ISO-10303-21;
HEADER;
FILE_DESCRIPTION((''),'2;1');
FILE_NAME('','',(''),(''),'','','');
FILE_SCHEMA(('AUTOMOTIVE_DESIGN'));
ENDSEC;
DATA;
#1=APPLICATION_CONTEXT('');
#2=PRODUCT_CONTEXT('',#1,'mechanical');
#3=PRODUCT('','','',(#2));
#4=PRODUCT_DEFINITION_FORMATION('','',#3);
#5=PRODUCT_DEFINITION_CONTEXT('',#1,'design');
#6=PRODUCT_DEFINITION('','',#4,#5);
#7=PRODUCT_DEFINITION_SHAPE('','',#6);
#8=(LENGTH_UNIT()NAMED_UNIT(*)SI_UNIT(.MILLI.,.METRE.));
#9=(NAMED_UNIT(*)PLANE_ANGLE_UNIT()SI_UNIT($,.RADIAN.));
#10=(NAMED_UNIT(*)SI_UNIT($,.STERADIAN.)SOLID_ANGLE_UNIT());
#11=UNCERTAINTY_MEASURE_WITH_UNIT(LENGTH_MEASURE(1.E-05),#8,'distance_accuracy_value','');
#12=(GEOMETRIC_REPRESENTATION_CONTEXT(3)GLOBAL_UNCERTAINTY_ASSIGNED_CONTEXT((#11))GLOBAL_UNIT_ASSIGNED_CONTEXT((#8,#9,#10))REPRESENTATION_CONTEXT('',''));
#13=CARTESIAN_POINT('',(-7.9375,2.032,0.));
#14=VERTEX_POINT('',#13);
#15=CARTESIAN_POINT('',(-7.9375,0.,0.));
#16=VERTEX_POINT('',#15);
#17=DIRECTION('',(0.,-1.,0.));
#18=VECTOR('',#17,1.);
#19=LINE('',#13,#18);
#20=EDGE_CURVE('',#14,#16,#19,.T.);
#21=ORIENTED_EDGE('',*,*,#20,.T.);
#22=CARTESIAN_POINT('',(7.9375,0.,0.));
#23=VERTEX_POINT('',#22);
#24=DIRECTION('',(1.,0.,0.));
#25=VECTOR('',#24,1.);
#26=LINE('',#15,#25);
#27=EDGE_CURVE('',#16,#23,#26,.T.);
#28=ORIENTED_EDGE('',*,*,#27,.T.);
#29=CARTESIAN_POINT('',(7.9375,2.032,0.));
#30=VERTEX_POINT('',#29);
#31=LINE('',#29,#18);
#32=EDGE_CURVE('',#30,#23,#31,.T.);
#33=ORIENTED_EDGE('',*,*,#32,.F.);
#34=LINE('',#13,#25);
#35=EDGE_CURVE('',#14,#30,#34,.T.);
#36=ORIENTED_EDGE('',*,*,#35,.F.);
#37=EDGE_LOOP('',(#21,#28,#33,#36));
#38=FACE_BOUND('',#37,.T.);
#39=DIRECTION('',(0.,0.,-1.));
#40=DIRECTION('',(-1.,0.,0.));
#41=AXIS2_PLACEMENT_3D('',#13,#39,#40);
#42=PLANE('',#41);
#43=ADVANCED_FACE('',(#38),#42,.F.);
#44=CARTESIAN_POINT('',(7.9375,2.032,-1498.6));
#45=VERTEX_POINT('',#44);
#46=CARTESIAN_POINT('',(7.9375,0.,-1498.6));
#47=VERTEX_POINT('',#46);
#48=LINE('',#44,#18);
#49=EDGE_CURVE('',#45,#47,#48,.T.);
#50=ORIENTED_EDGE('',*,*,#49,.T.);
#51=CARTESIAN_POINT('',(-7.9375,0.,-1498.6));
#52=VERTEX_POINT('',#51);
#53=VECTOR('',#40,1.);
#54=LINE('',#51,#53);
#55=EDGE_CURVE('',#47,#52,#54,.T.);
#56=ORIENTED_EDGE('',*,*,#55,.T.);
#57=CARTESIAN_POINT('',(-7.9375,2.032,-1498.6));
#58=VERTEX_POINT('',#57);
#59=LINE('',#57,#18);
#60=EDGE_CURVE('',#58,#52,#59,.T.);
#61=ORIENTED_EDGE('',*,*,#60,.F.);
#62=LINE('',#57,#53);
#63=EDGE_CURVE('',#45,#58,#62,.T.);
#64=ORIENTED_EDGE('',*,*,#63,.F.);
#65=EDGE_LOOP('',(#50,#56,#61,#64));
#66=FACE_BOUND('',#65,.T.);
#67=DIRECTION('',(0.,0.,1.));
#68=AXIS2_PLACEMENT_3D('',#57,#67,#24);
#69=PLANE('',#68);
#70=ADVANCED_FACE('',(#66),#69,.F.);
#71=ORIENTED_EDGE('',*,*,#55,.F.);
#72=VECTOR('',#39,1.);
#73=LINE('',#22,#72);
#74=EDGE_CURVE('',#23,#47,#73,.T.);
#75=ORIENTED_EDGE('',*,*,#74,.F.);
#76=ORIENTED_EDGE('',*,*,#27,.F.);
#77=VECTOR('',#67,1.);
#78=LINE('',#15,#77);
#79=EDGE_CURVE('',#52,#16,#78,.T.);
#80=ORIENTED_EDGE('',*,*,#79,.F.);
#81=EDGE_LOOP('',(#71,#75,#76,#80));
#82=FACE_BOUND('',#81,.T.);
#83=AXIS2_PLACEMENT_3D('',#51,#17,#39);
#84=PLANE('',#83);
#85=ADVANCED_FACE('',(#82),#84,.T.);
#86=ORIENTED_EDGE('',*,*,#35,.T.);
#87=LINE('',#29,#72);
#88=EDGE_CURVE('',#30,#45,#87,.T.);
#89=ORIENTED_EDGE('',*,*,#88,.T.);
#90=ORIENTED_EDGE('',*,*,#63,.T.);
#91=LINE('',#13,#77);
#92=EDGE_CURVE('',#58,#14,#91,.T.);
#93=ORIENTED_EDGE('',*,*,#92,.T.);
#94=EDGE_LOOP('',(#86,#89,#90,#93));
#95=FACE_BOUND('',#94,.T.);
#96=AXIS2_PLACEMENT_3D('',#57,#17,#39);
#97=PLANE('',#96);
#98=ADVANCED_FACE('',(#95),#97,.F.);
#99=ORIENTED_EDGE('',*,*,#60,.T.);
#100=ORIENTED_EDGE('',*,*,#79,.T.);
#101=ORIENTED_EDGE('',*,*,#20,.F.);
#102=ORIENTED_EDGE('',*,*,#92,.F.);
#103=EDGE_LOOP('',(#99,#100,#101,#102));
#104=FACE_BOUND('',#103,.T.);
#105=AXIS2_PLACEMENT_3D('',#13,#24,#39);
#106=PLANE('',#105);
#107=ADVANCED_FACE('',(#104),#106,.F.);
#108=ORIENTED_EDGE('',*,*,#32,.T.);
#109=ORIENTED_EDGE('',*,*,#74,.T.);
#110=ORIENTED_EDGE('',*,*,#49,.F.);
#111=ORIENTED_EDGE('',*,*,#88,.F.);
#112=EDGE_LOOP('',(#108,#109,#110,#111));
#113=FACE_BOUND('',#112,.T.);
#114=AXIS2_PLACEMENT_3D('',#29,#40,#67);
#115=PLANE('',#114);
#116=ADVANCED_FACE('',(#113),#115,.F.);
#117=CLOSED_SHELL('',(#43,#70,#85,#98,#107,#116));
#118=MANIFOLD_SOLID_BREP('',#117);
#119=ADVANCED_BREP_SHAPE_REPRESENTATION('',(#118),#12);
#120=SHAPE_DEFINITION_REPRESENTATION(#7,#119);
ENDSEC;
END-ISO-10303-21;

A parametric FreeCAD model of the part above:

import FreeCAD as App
import Part
import Sketcher
from FreeCAD import Vector
Q = App.Units.Quantity


def add_polygon(sketch, points):
    """Adds a closed chain of lines whose ends are joined by coincident constraints."""
    first, n = sketch.GeometryCount, len(points)
    for a, b in zip(points, points[1:] + points[:1]):
        sketch.addGeometry(Part.LineSegment(App.Vector(*a, 0), App.Vector(*b, 0)), False)
    for i in range(n):
        sketch.addConstraint(Sketcher.Constraint("Coincident", first + i, 2, first + (i + 1) % n, 1))

doc = App.newDocument("Part")
params = doc.addObject("Spreadsheet::Sheet", "Params")
for row, (alias, value) in enumerate([
    ("sketch1_height", "59 in"),
    ("sketch1_width", "0.625 in"),
    ("pad1_length", "0.08 in"),
], start=1):
    params.set(f"A{row}", alias)
    params.set(f"B{row}", "=" + value)
    params.setAlias(f"B{row}", alias)

body = doc.addObject("PartDesign::Body", "Body")

sketch1 = doc.addObject("Sketcher::SketchObject", "Sketch")
body.addObject(sketch1)
sketch1.AttachmentSupport = (doc.XZ_Plane, [""])
sketch1.MapMode = "FlatFace"
add_polygon(sketch1, [(-7.9375, -1498.6), (-7.9375, 0), (7.9375, 0), (7.9375, -1498.6)])
sketch1.addConstraint([
    Sketcher.Constraint("Vertical", 0),
    Sketcher.Constraint("Horizontal", 1),
    Sketcher.Constraint("Vertical", 2),
    Sketcher.Constraint("Horizontal", 3),
    Sketcher.Constraint("Symmetric", 0, 2, 1, 2, -1, 1),
    Sketcher.Constraint("DistanceY", 0, 1, 0, 2, Q("59 in")),
    Sketcher.Constraint("DistanceX", 1, 1, 1, 2, Q("0.625 in")),
])
sketch1.setExpression("Constraints[9]", "Params.sketch1_height")
sketch1.setExpression("Constraints[10]", "Params.sketch1_width")
pad1 = doc.addObject("PartDesign::Pad", "Pad")
body.addObject(pad1)
pad1.Profile = sketch1
pad1.setExpression("Length", "Params.pad1_length")
pad1.Reversed = True

doc.recompute()
